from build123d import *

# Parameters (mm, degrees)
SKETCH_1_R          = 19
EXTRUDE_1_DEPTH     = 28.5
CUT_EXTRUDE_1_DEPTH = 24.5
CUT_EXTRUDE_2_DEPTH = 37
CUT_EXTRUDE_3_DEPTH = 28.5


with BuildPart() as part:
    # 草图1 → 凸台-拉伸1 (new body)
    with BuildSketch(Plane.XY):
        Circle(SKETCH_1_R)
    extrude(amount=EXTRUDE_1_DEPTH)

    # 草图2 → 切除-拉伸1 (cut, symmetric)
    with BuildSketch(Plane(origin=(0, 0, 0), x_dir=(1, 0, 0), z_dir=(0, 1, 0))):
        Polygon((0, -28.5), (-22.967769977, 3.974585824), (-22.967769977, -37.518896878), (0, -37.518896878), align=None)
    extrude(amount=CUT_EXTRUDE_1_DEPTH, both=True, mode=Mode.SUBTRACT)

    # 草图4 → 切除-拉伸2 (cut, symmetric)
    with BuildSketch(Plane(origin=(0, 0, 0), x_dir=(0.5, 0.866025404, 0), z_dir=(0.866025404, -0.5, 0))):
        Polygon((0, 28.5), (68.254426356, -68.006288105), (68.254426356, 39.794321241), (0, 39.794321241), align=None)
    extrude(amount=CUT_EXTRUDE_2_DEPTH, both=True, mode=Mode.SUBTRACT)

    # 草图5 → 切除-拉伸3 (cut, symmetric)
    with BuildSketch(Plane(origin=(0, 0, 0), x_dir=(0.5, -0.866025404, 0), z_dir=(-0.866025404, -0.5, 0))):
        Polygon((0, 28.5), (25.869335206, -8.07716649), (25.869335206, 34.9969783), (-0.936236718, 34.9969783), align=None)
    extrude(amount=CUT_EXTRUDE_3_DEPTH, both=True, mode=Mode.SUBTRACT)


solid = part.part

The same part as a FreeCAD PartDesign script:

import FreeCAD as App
import Part
import Sketcher
Q = App.Units.Quantity


def add_polygon(sketch, points):
    """Adds a closed chain of lines whose ends are joined by coincident constraints."""
    first, n = sketch.GeometryCount, len(points)
    for a, b in zip(points, points[1:] + points[:1]):
        sketch.addGeometry(Part.LineSegment(App.Vector(*a, 0), App.Vector(*b, 0)), False)
    for i in range(n):
        sketch.addConstraint(Sketcher.Constraint("Coincident", first + i, 2, first + (i + 1) % n, 1))

doc = App.newDocument("Part")
body = doc.addObject("PartDesign::Body", "Body")

sketch1 = body.newObject("Sketcher::SketchObject", "Sketch")
sketch1.AttachmentSupport = (doc.getObject("XY_Plane"), [""])
sketch1.MapMode = "FlatFace"
sketch1.addGeometry(Part.Circle(App.Vector(0, 0, 0), App.Vector(0, 0, 1), 19), False)
sketch1.addConstraint(Sketcher.Constraint("Coincident", 0, 3, -1, 1))
sketch1.addConstraint(Sketcher.Constraint("Diameter", 0, Q("38 mm")))
pad1 = body.newObject("PartDesign::Pad", "Pad")
pad1.Profile = sketch1
pad1.Length = 28.5

sketch2 = body.newObject("Sketcher::SketchObject", "Sketch001")
sketch2.AttachmentSupport = (doc.getObject("XZ_Plane"), [""])
sketch2.MapMode = "FlatFace"
add_polygon(sketch2, [(0, 28), (-23, -4), (-23, 38), (0, 38)])
sketch2.addConstraint(Sketcher.Constraint("Vertical", 1))
sketch2.addConstraint(Sketcher.Constraint("Horizontal", 2))
sketch2.addConstraint(Sketcher.Constraint("Vertical", 3))
sketch2.addConstraint(Sketcher.Constraint("PointOnObject", 2, 2, -2))
sketch2.addConstraint(Sketcher.Constraint("DistanceY", -1, 1, 3, 2, Q("28.5 mm")))
sketch2.addConstraint(Sketcher.Constraint("Angle", 0, Q("-125.27 deg")))
sketch2.addConstraint(Sketcher.Constraint("DistanceX", 2, 1, 2, 2, Q("22.96777 mm")))
sketch2.addConstraint(Sketcher.Constraint("DistanceY", 1, 1, 1, 2, Q("41.493483 mm")))
pocket1 = body.newObject("PartDesign::Pocket", "Pocket")
pocket1.Profile = sketch2
pocket1.Length = 49
pocket1.Midplane = True

sketch3 = body.newObject("Sketcher::SketchObject", "Sketch002")
sketch3.Placement = App.Placement(App.Vector(0, 0, 0), App.Rotation(App.Vector(0.5, 0.866025404, 0), App.Vector(0, 0, 1), App.Vector(0.866025404, -0.5, 0), "ZXY"))
add_polygon(sketch3, [(0, 29), (68, -68), (68, 40), (0, 40)])
sketch3.addConstraint(Sketcher.Constraint("Vertical", 1))
sketch3.addConstraint(Sketcher.Constraint("Horizontal", 2))
sketch3.addConstraint(Sketcher.Constraint("Vertical", 3))
sketch3.addConstraint(Sketcher.Constraint("PointOnObject", 2, 2, -2))
sketch3.addConstraint(Sketcher.Constraint("DistanceY", -1, 1, 3, 2, Q("28.5 mm")))
sketch3.addConstraint(Sketcher.Constraint("Angle", 0, Q("-54.73 deg")))
sketch3.addConstraint(Sketcher.Constraint("DistanceY", 1, 1, 1, 2, Q("107.800609 mm")))
sketch3.addConstraint(Sketcher.Constraint("DistanceY", 3, 2, 3, 1, Q("11.294321 mm")))
pocket2 = body.newObject("PartDesign::Pocket", "Pocket001")
pocket2.Profile = sketch3
pocket2.Length = 74
pocket2.Midplane = True

sketch4 = body.newObject("Sketcher::SketchObject", "Sketch003")
sketch4.Placement = App.Placement(App.Vector(0, 0, 0), App.Rotation(App.Vector(0.5, -0.866025404, 0), App.Vector(0, 0, 1), App.Vector(-0.866025404, -0.5, 0), "ZXY"))
add_polygon(sketch4, [(0, 29), (26, -8), (26, 35), (-1, 35)])
sketch4.addConstraint(Sketcher.Constraint("Vertical", 1))
sketch4.addConstraint(Sketcher.Constraint("Horizontal", 2))
sketch4.addConstraint(Sketcher.Constraint("PointOnObject", 3, 2, -2))
sketch4.addConstraint(Sketcher.Constraint("DistanceY", -1, 1, 3, 2, Q("28.5 mm")))
sketch4.addConstraint(Sketcher.Constraint("Angle", 0, Q("-54.73 deg")))
sketch4.addConstraint(Sketcher.Constraint("Distance", 0, Q("44.800799 mm")))
sketch4.addConstraint(Sketcher.Constraint("DistanceX", 2, 2, 2, 1, Q("26.805572 mm")))
sketch4.addConstraint(Sketcher.Constraint("Distance", 3, Q("6.564089 mm")))
pocket3 = body.newObject("PartDesign::Pocket", "Pocket002")
pocket3.Profile = sketch4
pocket3.Length = 57
pocket3.Midplane = True

doc.recompute()
